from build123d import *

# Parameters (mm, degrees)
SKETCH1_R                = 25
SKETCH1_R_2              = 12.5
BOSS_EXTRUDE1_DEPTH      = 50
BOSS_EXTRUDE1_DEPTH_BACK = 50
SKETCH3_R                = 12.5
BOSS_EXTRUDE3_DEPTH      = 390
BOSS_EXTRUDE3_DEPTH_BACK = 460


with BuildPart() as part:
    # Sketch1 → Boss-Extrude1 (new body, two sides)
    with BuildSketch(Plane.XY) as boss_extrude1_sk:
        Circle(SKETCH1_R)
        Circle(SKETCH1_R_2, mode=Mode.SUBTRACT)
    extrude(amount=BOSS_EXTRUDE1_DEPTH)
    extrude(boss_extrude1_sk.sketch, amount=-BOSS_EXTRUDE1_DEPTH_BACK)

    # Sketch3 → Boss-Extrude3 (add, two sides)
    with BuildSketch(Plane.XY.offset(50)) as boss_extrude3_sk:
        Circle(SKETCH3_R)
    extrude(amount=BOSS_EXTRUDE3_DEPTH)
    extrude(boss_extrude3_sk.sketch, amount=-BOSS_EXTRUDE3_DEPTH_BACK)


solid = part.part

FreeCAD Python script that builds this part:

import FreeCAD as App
import Part
import Sketcher

doc = App.newDocument("Part")
params = doc.addObject("Spreadsheet::Sheet", "Params")
for row, (alias, value) in enumerate([
    ("sketch1_diameter", "50 mm"),
    ("sketch1_diameter2", "25 mm"),
    ("pad1_length", "50 mm"),
    ("pad1_length2", "50 mm"),
    ("sketch2_diameter", "25 mm"),
    ("pad2_length", "390 mm"),
    ("pad2_length2", "460 mm"),
], start=1):
    params.set(f"A{row}", alias)
    params.set(f"B{row}", "=" + value)
    params.setAlias(f"B{row}", alias)

body = doc.addObject("PartDesign::Body", "Body")

# Sketch on XY plane
sketch1 = body.newObject("Sketcher::SketchObject", "Sketch")
sketch1.AttachmentSupport = (doc.getObject("XY_Plane"), [""])
sketch1.MapMode = "FlatFace"
sketch1.addGeometry(Part.Circle(App.Vector(0, 0, 0), App.Vector(0, 0, 1), 25), False)
sketch1.addGeometry(Part.Circle(App.Vector(0, 0, 0), App.Vector(0, 0, 1), 12), False)
sketch1.addConstraint(Sketcher.Constraint("Coincident", 0, 3, -1, 1))
sketch1.addConstraint(Sketcher.Constraint("Coincident", 1, 3, -1, 1))
sketch1.addConstraint(Sketcher.Constraint("Diameter", 0, 50.0))
sketch1.addConstraint(Sketcher.Constraint("Diameter", 1, 25.0))
sketch1.setExpression("Constraints[2]", "Params.sketch1_diameter")
sketch1.setExpression("Constraints[3]", "Params.sketch1_diameter2")
pad1 = body.newObject("PartDesign::Pad", "Pad")
pad1.Profile = sketch1
pad1.Type = "TwoLengths"
pad1.setExpression("Length", "Params.pad1_length")
pad1.setExpression("Length2", "Params.pad1_length2")

# Sketch on XY plane
sketch2 = body.newObject("Sketcher::SketchObject", "Sketch001")
sketch2.AttachmentSupport = (doc.getObject("XY_Plane"), [""])
sketch2.MapMode = "FlatFace"
sketch2.AttachmentOffset = App.Placement(App.Vector(0, 0, 50), App.Rotation())
sketch2.addGeometry(Part.Circle(App.Vector(0, 0, 0), App.Vector(0, 0, 1), 12), False)
sketch2.addConstraint(Sketcher.Constraint("Coincident", 0, 3, -1, 1))
sketch2.addConstraint(Sketcher.Constraint("Diameter", 0, 25.0))
sketch2.setExpression("Constraints[1]", "Params.sketch2_diameter")
pad2 = body.newObject("PartDesign::Pad", "Pad001")
pad2.Profile = sketch2
pad2.Type = "TwoLengths"
pad2.setExpression("Length", "Params.pad2_length")
pad2.setExpression("Length2", "Params.pad2_length2")

doc.recompute()
